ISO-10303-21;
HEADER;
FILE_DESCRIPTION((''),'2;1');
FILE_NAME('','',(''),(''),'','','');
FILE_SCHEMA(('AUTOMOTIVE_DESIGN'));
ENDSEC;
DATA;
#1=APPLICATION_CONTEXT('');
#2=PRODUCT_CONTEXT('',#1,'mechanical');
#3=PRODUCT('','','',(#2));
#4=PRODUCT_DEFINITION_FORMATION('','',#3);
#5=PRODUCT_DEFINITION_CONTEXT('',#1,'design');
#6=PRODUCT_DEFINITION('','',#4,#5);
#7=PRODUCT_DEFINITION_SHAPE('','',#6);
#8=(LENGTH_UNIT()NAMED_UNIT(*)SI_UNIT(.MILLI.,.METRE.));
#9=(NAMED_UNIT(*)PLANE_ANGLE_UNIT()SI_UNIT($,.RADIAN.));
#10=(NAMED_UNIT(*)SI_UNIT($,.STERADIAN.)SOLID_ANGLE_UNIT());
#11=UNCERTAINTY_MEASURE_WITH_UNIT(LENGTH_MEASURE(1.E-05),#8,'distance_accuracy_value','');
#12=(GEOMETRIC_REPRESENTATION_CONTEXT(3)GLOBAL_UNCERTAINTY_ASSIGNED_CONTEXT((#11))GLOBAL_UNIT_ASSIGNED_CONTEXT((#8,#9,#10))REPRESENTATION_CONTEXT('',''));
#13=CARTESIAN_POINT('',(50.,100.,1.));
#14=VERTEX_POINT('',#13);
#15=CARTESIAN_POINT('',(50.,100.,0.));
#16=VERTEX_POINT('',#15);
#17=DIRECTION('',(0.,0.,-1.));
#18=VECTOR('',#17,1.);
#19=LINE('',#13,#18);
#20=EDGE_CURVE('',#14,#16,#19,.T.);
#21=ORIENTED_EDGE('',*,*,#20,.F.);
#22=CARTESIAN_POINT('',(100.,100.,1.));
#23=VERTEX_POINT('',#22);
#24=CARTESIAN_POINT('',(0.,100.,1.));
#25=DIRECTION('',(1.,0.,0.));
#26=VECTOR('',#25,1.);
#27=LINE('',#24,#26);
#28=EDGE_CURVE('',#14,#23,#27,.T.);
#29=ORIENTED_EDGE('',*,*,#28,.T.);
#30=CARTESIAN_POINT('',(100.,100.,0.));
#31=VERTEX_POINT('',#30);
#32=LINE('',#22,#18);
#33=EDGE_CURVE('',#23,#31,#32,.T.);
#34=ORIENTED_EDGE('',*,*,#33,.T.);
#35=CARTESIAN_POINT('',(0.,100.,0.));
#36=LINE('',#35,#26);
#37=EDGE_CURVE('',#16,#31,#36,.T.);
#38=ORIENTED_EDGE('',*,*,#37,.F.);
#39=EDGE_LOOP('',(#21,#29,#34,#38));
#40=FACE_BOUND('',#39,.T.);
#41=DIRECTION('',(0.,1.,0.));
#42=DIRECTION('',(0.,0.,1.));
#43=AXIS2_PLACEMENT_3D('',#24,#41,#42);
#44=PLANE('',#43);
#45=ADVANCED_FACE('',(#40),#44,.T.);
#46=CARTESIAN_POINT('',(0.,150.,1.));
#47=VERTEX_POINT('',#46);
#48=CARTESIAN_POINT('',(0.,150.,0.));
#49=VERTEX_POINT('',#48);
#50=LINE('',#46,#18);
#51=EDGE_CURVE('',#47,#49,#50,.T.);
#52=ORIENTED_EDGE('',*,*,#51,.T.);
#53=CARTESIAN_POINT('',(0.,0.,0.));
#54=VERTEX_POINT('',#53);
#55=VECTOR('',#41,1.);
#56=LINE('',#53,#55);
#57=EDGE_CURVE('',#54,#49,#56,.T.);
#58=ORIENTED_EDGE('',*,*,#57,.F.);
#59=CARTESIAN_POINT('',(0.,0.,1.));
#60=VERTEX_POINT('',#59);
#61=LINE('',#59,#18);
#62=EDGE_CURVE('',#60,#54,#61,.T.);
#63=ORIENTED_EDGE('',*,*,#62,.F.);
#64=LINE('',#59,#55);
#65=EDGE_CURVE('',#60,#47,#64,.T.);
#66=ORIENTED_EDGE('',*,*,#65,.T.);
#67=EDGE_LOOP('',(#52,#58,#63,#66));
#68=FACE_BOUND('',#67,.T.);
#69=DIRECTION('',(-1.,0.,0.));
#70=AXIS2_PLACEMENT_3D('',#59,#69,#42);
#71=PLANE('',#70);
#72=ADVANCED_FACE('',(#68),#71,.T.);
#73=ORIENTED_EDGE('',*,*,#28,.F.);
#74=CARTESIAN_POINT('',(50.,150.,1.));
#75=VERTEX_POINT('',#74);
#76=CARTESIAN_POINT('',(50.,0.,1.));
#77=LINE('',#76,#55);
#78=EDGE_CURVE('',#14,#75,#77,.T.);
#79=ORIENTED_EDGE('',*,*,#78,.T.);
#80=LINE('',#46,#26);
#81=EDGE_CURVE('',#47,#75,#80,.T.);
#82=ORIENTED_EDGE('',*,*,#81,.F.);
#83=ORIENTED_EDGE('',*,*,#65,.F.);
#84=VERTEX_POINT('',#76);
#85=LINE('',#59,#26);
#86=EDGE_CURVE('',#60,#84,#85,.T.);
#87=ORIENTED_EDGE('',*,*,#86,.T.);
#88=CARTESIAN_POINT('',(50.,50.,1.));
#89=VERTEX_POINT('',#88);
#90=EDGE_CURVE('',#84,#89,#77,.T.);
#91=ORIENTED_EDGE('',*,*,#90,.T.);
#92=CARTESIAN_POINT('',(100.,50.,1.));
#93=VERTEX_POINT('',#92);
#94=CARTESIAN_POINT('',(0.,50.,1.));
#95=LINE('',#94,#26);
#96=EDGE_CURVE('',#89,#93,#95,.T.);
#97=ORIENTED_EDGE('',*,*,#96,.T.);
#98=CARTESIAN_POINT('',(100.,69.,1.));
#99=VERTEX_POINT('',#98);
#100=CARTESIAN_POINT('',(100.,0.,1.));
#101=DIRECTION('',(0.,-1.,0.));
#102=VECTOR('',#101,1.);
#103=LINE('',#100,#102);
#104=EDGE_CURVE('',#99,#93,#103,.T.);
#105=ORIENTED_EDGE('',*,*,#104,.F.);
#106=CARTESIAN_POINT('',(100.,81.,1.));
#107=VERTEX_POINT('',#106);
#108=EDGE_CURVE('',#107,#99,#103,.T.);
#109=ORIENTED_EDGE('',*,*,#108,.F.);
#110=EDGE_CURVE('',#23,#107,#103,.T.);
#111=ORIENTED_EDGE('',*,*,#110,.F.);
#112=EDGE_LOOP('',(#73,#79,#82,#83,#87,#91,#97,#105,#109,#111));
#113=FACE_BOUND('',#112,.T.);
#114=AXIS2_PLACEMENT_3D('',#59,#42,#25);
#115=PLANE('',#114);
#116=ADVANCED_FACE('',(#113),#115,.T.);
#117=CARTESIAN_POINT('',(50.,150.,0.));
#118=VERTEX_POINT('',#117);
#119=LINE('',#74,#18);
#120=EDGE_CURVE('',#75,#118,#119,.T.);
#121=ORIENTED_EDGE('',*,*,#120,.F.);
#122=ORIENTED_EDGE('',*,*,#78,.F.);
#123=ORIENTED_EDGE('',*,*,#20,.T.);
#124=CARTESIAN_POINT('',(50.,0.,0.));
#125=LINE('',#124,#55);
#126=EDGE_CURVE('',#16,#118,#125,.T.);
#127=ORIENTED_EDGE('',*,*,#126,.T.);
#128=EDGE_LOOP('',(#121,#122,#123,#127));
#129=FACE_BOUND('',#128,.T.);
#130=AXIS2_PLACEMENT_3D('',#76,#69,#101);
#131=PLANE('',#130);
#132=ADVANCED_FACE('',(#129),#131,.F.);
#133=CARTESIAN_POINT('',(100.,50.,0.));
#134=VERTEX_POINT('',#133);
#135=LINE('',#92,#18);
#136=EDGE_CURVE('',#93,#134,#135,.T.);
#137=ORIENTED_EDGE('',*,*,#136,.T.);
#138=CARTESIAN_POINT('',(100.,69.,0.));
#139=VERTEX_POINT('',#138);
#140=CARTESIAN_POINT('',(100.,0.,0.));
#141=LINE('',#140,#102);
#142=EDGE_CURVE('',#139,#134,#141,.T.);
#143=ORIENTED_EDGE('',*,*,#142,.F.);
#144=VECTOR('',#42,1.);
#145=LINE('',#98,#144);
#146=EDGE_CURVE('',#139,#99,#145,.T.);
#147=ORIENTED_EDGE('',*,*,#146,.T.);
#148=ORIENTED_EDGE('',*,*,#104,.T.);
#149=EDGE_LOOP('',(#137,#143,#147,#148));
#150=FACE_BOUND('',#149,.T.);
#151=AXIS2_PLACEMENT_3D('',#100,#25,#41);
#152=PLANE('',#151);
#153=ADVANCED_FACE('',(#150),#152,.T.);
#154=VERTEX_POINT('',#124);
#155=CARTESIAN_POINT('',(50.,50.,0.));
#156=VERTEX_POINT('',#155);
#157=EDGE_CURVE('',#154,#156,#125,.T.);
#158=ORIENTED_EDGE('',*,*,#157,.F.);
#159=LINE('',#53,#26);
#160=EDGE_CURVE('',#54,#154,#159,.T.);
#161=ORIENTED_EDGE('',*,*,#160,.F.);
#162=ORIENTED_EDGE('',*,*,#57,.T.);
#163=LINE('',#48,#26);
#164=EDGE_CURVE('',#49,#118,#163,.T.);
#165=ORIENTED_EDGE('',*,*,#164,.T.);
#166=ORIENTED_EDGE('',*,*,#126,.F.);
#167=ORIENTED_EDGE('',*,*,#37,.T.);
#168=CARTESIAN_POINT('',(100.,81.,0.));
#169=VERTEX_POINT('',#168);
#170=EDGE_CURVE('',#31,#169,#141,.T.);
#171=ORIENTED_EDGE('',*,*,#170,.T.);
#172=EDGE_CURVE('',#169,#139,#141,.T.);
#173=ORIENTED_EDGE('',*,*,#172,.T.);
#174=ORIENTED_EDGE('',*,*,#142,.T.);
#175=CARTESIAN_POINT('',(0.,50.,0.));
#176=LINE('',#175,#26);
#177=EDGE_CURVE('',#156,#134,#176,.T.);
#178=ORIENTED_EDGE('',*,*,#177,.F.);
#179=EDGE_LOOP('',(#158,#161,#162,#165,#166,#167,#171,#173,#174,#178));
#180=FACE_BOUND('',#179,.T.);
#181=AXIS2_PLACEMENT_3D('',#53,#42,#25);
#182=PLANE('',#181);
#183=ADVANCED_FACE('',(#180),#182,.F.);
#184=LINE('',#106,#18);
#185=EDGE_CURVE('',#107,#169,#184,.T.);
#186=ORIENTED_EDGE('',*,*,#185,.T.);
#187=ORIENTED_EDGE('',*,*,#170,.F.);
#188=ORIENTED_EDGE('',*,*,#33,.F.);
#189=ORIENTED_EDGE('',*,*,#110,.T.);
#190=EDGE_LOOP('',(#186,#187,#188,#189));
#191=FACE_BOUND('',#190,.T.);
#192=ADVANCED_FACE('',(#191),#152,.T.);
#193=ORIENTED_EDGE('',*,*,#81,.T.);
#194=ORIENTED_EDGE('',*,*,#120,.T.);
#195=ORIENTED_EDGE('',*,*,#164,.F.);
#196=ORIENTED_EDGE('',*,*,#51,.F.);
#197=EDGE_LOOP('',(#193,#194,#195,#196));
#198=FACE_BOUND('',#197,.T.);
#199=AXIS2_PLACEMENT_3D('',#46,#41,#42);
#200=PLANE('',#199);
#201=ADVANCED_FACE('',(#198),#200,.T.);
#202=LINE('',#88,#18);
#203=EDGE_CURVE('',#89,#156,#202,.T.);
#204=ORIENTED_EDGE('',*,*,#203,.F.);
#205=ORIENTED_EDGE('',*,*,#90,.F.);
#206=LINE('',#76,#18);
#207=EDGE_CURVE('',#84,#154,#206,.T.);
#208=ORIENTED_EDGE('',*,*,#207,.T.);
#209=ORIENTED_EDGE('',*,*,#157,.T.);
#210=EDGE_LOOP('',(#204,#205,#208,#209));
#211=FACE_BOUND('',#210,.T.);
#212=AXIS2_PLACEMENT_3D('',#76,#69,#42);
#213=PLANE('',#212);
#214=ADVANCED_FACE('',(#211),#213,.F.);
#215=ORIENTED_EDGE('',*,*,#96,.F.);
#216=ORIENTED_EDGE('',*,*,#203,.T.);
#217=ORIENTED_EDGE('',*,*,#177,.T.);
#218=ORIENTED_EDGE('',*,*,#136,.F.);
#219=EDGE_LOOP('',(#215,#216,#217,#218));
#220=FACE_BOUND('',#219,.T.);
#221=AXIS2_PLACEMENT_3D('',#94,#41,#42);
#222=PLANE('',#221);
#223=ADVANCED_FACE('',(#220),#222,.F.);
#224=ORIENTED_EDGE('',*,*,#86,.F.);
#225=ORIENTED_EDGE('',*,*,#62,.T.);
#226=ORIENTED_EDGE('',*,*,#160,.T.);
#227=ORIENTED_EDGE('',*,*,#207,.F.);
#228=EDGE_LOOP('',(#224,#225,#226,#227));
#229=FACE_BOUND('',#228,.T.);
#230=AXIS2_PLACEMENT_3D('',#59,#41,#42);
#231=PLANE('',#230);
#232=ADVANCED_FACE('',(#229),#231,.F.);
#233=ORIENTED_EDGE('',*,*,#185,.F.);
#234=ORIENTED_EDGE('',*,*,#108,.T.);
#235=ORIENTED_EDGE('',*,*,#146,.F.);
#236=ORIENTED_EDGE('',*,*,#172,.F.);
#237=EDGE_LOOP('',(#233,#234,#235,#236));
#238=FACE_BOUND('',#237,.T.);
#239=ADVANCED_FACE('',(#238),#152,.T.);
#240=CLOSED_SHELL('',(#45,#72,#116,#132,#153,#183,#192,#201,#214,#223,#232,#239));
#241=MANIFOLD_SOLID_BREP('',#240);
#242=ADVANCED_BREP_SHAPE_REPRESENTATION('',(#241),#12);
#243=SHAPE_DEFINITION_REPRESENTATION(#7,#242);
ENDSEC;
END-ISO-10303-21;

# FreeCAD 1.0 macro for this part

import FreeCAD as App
import Part
import Sketcher

V = App.Vector

doc = App.newDocument("Part")
body = doc.addObject("PartDesign::Body", "Body")

# Sketch on XY plane
sketch1 = body.newObject("Sketcher::SketchObject", "Sketch")
sketch1.AttachmentSupport = (doc.getObject("XY_Plane"), [""])
sketch1.MapMode = "FlatFace"
sketch1.addGeometry([
    Part.LineSegment(V(50, 100, 0), V(50, 150, 0)),  # 0
    Part.LineSegment(V(50, 150, 0), V(0, 150, 0)),  # 1
    Part.LineSegment(V(0, 150, 0), V(0, 0, 0)),  # 2
    Part.LineSegment(V(0, 0, 0), V(50, 0, 0)),  # 3
    Part.LineSegment(V(50, 0, 0), V(50, 50, 0)),  # 4
    Part.LineSegment(V(50, 50, 0), V(100, 50, 0)),  # 5
    Part.LineSegment(V(100, 50, 0), V(100, 100, 0)),  # 6
    Part.LineSegment(V(100, 100, 0), V(50, 100, 0)),  # 7
], False)
sketch1.addConstraint([
    Sketcher.Constraint("Coincident", 0, 2, 1, 1),
    Sketcher.Constraint("Coincident", 1, 2, 2, 1),
    Sketcher.Constraint("Coincident", 2, 2, 3, 1),
    Sketcher.Constraint("Coincident", 3, 2, 4, 1),
    Sketcher.Constraint("Coincident", 4, 2, 5, 1),
    Sketcher.Constraint("Coincident", 5, 2, 6, 1),
    Sketcher.Constraint("Coincident", 6, 2, 7, 1),
    Sketcher.Constraint("Coincident", 7, 2, 0, 1),
    Sketcher.Constraint("Vertical", 0),
    Sketcher.Constraint("Horizontal", 1),
    Sketcher.Constraint("Vertical", 2),
    Sketcher.Constraint("Horizontal", 3),
    Sketcher.Constraint("Vertical", 4),
    Sketcher.Constraint("Horizontal", 5),
    Sketcher.Constraint("Vertical", 6),
    Sketcher.Constraint("Horizontal", 7),
    Sketcher.Constraint("Coincident", 2, 2, -1, 1),
    Sketcher.Constraint("Vertical", 0, 2, 3, 2),
    Sketcher.Constraint("Equal", 3, 5),
    Sketcher.Constraint("Equal", 7, 0),
    Sketcher.Constraint("Equal", 0, 4),
    Sketcher.Constraint("Equal", 4, 6),
    Sketcher.Constraint("DistanceX", 1, 2, 1, 1, 50.0),
])
pad1 = body.newObject("PartDesign::Pad", "Pad")
pad1.Profile = sketch1
pad1.Length = 1

doc.recompute()
